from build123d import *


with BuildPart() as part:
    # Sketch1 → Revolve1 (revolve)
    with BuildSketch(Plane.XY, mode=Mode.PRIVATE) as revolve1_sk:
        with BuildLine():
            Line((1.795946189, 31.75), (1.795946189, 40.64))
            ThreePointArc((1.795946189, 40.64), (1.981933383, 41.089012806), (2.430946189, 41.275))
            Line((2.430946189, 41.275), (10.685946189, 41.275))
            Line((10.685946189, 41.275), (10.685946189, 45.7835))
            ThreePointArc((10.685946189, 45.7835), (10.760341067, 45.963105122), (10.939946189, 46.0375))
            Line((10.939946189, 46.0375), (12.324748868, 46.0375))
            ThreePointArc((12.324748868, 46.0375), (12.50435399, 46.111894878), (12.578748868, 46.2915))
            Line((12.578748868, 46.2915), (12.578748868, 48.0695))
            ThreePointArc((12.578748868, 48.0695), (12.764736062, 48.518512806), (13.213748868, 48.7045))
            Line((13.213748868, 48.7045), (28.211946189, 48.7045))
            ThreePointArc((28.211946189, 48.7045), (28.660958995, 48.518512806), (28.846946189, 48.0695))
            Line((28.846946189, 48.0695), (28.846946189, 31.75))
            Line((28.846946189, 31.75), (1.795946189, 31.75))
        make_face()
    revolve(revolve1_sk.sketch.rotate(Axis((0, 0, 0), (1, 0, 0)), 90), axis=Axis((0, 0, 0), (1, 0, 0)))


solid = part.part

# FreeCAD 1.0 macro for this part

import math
import FreeCAD as App
import Part
import Sketcher
from FreeCAD import Vector
Q = App.Units.Quantity

doc = App.newDocument("Part")
params = doc.addObject("Spreadsheet::Sheet", "Params")
for row, (alias, value) in enumerate([
    ("sketch1_radius", "0.01 in"),
    ("sketch1_radius2", "0.025 in"),
    ("sketch1_height", "0.35 in"),
    ("sketch1_height2", "0.07 in"),
    ("sketch1_width", "1.065 in"),
    ("revolution_angle", "360 deg"),
], start=1):
    params.set(f"A{row}", alias)
    params.set(f"B{row}", "=" + value)
    params.setAlias(f"B{row}", alias)

body = doc.addObject("PartDesign::Body", "Body")

sketch1 = body.newObject("Sketcher::SketchObject", "Sketch")
sketch1.AttachmentSupport = (doc.getObject("XY_Plane"), [""])
sketch1.MapMode = "FlatFace"
sketch1.addGeometry(Part.LineSegment(Vector(1.795946, 40.64, 0), Vector(1.795946, 31.75, 0)), False)
sketch1.addGeometry(Part.LineSegment(Vector(1.795946, 31.75, 0), Vector(28.846946, 31.75, 0)), False)
sketch1.addGeometry(Part.LineSegment(Vector(28.846946, 31.75, 0), Vector(28.846946, 48.0695, 0)), False)
sketch1.addGeometry(Part.ArcOfCircle(Part.Circle(Vector(28.211946, 48.0695, 0), Vector(0, 0, 1), 0.635), math.radians(0), math.radians(90)), False)
sketch1.addGeometry(Part.LineSegment(Vector(28.211946, 48.7045, 0), Vector(13.213749, 48.7045, 0)), False)
sketch1.addGeometry(Part.ArcOfCircle(Part.Circle(Vector(13.213749, 48.0695, 0), Vector(0, 0, 1), 0.635), math.radians(90), math.radians(180)), False)
sketch1.addGeometry(Part.LineSegment(Vector(12.578749, 48.0695, 0), Vector(12.578749, 46.2915, 0)), False)
sketch1.addGeometry(Part.ArcOfCircle(Part.Circle(Vector(12.324749, 46.2915, 0), Vector(0, 0, 1), 0.254), math.radians(-90), math.radians(0)), False)
sketch1.addGeometry(Part.LineSegment(Vector(12.324749, 46.0375, 0), Vector(10.939946, 46.0375, 0)), False)
sketch1.addGeometry(Part.ArcOfCircle(Part.Circle(Vector(10.939946, 45.7835, 0), Vector(0, 0, 1), 0.254), math.radians(90), math.radians(180)), False)
sketch1.addGeometry(Part.LineSegment(Vector(10.685946, 45.7835, 0), Vector(10.685946, 41.275, 0)), False)
sketch1.addGeometry(Part.LineSegment(Vector(10.685946, 41.275, 0), Vector(2.430946, 41.275, 0)), False)
sketch1.addGeometry(Part.ArcOfCircle(Part.Circle(Vector(2.430946, 40.64, 0), Vector(0, 0, 1), 0.635), math.radians(90), math.radians(180)), False)
sketch1.addConstraint(Sketcher.Constraint("Coincident", 0, 2, 1, 1))
sketch1.addConstraint(Sketcher.Constraint("Coincident", 1, 2, 2, 1))
sketch1.addConstraint(Sketcher.Constraint("Tangent", 2, 2, 3, 1))
sketch1.addConstraint(Sketcher.Constraint("Tangent", 3, 2, 4, 1))
sketch1.addConstraint(Sketcher.Constraint("Tangent", 4, 2, 5, 1))
sketch1.addConstraint(Sketcher.Constraint("Tangent", 5, 2, 6, 1))
sketch1.addConstraint(Sketcher.Constraint("Tangent", 6, 2, 7, 2))
sketch1.addConstraint(Sketcher.Constraint("Tangent", 7, 1, 8, 1))
sketch1.addConstraint(Sketcher.Constraint("Tangent", 8, 2, 9, 1))
sketch1.addConstraint(Sketcher.Constraint("Tangent", 9, 2, 10, 1))
sketch1.addConstraint(Sketcher.Constraint("Coincident", 10, 2, 11, 1))
sketch1.addConstraint(Sketcher.Constraint("Tangent", 11, 2, 12, 1))
sketch1.addConstraint(Sketcher.Constraint("Tangent", 12, 2, 0, 1))
sketch1.addConstraint(Sketcher.Constraint("Vertical", 0))
sketch1.addConstraint(Sketcher.Constraint("Horizontal", 1))
sketch1.addConstraint(Sketcher.Constraint("Vertical", 2))
sketch1.addConstraint(Sketcher.Constraint("Horizontal", 4))
sketch1.addConstraint(Sketcher.Constraint("Vertical", 6))
sketch1.addConstraint(Sketcher.Constraint("Horizontal", 8))
sketch1.addConstraint(Sketcher.Constraint("Vertical", 10))
sketch1.addConstraint(Sketcher.Constraint("Horizontal", 11))
sketch1.addConstraint(Sketcher.Constraint("Equal", 3, 5))
sketch1.addConstraint(Sketcher.Constraint("Equal", 7, 9))
sketch1.addConstraint(Sketcher.Constraint("Equal", 5, 12))
sketch1.addConstraint(Sketcher.Constraint("Radius", 7, Q("0.01 in")))
sketch1.addConstraint(Sketcher.Constraint("Radius", 3, Q("0.025 in")))
sketch1.addConstraint(Sketcher.Constraint("DistanceY", 0, 2, 0, 1, Q("0.35 in")))
sketch1.addConstraint(Sketcher.Constraint("DistanceY", 6, 2, 6, 1, Q("0.07 in")))
sketch1.addConstraint(Sketcher.Constraint("DistanceY", -1, 1, 12, 3, Q("1.6 in")))
sketch1.addConstraint(Sketcher.Constraint("DistanceX", 1, 1, 1, 2, Q("1.065 in")))
sketch1.addConstraint(Sketcher.Constraint("DistanceX", 11, 2, 11, 1, Q("0.325 in")))
sketch1.addConstraint(Sketcher.Constraint("DistanceY", 2, 1, 2, 2, Q("0.6425 in")))
sketch1.addConstraint(Sketcher.Constraint("DistanceX", 4, 2, 4, 1, 14.998197))
sketch1.addConstraint(Sketcher.Constraint("DistanceX", -1, 1, 5, 3, 13.213749))
sketch1.setExpression("Constraints[24]", "Params.sketch1_radius")
sketch1.setExpression("Constraints[25]", "Params.sketch1_radius2")
sketch1.setExpression("Constraints[26]", "Params.sketch1_height")
sketch1.setExpression("Constraints[27]", "Params.sketch1_height2")
sketch1.setExpression("Constraints[29]", "Params.sketch1_width")
revolution = body.newObject("PartDesign::Revolution", "Revolution")
revolution.Profile = sketch1
revolution.ReferenceAxis = (sketch1, ["H_Axis"])
revolution.setExpression("Angle", "Params.revolution_angle")

doc.recompute()
